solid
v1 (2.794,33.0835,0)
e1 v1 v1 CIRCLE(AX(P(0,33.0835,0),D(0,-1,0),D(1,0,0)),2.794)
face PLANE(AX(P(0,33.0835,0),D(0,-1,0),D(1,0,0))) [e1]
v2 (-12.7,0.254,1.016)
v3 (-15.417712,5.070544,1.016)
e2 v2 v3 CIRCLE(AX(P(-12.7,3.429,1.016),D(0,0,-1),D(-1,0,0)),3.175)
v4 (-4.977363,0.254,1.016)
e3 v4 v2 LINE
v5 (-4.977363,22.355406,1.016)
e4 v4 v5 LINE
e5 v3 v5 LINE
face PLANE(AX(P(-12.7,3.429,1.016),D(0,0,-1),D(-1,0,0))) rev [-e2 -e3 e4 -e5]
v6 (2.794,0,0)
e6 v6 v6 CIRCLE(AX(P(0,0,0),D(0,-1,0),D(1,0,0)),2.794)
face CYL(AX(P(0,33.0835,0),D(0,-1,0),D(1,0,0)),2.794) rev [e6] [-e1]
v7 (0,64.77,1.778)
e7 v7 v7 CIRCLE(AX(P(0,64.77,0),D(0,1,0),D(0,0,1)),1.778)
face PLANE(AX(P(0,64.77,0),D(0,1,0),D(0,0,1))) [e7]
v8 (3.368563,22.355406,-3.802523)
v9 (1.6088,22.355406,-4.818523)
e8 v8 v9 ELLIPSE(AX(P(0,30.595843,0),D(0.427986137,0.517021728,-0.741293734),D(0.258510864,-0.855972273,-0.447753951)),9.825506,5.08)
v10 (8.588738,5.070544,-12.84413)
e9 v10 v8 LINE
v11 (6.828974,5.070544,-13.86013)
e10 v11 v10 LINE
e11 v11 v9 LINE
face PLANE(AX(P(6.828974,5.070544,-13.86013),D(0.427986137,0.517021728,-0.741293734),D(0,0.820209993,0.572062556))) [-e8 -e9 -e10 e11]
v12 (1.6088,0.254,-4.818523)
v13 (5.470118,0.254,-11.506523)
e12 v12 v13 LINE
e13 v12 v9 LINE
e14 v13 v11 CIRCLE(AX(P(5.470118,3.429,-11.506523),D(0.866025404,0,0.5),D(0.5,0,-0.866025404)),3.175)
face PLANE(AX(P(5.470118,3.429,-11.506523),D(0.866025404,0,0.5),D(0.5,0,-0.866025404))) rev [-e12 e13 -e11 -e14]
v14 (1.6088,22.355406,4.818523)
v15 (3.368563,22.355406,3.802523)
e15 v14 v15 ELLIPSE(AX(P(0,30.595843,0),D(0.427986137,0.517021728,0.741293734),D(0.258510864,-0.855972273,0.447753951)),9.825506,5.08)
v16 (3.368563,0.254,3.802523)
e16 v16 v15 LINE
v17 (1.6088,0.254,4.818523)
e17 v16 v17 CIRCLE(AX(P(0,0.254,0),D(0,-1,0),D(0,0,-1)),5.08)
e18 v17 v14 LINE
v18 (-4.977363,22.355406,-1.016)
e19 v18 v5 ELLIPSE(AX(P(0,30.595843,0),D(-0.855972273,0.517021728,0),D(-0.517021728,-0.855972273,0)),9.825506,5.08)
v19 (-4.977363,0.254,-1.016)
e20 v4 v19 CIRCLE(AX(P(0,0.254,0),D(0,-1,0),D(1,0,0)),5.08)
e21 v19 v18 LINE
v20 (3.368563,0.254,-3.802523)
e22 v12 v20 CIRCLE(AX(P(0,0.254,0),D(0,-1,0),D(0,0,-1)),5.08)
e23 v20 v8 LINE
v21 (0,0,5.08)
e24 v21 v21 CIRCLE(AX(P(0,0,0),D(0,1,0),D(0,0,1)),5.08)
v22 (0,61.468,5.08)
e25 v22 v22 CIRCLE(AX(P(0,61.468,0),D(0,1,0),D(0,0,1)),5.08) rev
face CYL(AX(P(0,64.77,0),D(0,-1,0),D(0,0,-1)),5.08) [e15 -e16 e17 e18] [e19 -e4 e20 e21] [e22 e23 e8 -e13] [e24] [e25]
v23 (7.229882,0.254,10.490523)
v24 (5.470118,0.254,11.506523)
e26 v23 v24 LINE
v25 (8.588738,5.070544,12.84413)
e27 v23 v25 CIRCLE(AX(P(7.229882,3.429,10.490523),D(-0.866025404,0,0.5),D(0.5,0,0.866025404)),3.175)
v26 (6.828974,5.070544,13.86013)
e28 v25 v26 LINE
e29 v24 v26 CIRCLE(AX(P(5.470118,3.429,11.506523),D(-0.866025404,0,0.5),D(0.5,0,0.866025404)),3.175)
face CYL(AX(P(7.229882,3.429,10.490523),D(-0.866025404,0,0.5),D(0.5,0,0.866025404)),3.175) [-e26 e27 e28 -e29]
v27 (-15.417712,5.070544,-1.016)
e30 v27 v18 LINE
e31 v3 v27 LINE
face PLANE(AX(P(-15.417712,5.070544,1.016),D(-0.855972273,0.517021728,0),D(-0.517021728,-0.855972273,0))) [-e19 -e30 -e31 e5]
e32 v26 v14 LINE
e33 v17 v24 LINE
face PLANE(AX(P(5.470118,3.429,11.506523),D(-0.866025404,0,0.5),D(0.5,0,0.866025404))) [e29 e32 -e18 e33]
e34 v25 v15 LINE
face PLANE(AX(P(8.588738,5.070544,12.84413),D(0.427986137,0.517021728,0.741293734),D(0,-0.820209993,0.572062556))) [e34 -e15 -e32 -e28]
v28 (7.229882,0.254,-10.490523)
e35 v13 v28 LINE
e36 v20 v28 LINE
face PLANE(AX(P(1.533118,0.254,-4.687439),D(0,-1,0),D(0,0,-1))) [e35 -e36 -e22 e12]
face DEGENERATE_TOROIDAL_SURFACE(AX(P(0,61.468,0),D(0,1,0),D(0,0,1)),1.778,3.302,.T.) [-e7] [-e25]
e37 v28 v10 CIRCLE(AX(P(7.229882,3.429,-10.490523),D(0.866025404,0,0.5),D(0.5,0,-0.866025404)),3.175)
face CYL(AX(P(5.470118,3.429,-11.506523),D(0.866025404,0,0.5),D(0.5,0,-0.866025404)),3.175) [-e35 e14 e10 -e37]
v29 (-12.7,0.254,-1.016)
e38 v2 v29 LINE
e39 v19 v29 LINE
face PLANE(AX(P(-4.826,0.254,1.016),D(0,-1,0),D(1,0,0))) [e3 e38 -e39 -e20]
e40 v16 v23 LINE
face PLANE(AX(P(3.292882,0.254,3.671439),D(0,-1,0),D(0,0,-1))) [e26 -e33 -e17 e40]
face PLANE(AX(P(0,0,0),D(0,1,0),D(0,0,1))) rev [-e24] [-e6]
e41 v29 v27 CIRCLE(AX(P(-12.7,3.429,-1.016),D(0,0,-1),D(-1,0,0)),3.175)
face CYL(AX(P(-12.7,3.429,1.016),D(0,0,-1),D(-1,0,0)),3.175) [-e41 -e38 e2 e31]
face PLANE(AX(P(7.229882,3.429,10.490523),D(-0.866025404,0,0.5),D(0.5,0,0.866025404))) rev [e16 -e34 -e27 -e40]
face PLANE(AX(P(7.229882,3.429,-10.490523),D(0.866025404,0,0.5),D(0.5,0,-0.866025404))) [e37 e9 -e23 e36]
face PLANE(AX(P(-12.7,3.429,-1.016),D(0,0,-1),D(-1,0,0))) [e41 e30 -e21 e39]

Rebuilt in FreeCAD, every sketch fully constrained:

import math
import FreeCAD as App
import Part
import Sketcher
Q = App.Units.Quantity


def edges_at(feature, points):
    """Names of the edges that pass closest to the given points."""
    edges = feature.Shape.Edges
    near = lambda p: min(range(len(edges)), key=lambda i: edges[i].distToShape(Part.Vertex(*p))[0])
    return sorted({f"Edge{near(p) + 1}" for p in points})


def add_polygon(sketch, points):
    """Adds a closed chain of lines whose ends are joined by coincident constraints."""
    first, n = sketch.GeometryCount, len(points)
    for a, b in zip(points, points[1:] + points[:1]):
        sketch.addGeometry(Part.LineSegment(App.Vector(*a, 0), App.Vector(*b, 0)), False)
    for i in range(n):
        sketch.addConstraint(Sketcher.Constraint("Coincident", first + i, 2, first + (i + 1) % n, 1))

doc = App.newDocument("Part")
params = doc.addObject("Spreadsheet::Sheet", "Params")
for row, (alias, value) in enumerate([
    ("sketch1_diameter", "0.4 in"),
    ("pad1_length", "2.55 in"),
    ("fillet_radius", "0.13 in"),
    ("sketch2_width", "0.11 in"),
    ("groove_angle", "360 deg"),
    ("sketch3_radius", "0.125 in"),
    ("sketch3_width", "0.31 in"),
    ("sketch3_height", "0.88 in"),
    ("pad2_length", "0.08 in"),
], start=1):
    params.set(f"A{row}", alias)
    params.set(f"B{row}", "=" + value)
    params.setAlias(f"B{row}", alias)

body = doc.addObject("PartDesign::Body", "Body")

# Sketch on XZ plane
sketch1 = body.newObject("Sketcher::SketchObject", "Sketch")
sketch1.AttachmentSupport = (doc.getObject("XZ_Plane"), [""])
sketch1.MapMode = "FlatFace"
sketch1.addGeometry(Part.Circle(App.Vector(0, 0, 0), App.Vector(0, 0, 1), 5), False)
sketch1.addConstraint([
    Sketcher.Constraint("Coincident", 0, 3, -1, 1),
    Sketcher.Constraint("Diameter", 0, Q("0.4 in")),
])
sketch1.setExpression("Constraints[1]", "Params.sketch1_diameter")
pad1 = body.newObject("PartDesign::Pad", "Pad")
pad1.Profile = sketch1
pad1.setExpression("Length", "Params.pad1_length")
pad1.Reversed = True
doc.recompute()

fillet = body.newObject("PartDesign::Fillet", "Fillet")
fillet.Base = (pad1, edges_at(pad1, [(0, 64.77, -5.08)]))
fillet.setExpression("Radius", "Params.fillet_radius")

# Sketch on XY plane
sketch2 = body.newObject("Sketcher::SketchObject", "Sketch001")
sketch2.AttachmentSupport = (doc.getObject("XY_Plane"), [""])
sketch2.MapMode = "FlatFace"
add_polygon(sketch2, [(-2.8, 33.1), (-2.8, 0), (0, 0), (0, 33.1)])  # lines 0-3
sketch2.addConstraint([
    Sketcher.Constraint("Vertical", 0),
    Sketcher.Constraint("Horizontal", 1),
    Sketcher.Constraint("Vertical", 2),
    Sketcher.Constraint("Horizontal", 3),
    Sketcher.Constraint("Coincident", 1, 2, -1, 1),
    Sketcher.Constraint("DistanceX", 1, 1, 1, 2, Q("0.11 in")),
    Sketcher.Constraint("DistanceY", 0, 2, 0, 1, Q("1.3025 in")),
])
sketch2.setExpression("Constraints[9]", "Params.sketch2_width")
groove = body.newObject("PartDesign::Groove", "Groove")
groove.Profile = sketch2
groove.ReferenceAxis = (sketch2, ["V_Axis"])
groove.setExpression("Angle", "Params.groove_angle")

# Sketch on XY plane
sketch3 = body.newObject("Sketcher::SketchObject", "Sketch002")
sketch3.AttachmentSupport = (doc.getObject("XY_Plane"), [""])
sketch3.MapMode = "FlatFace"
sketch3.addGeometry([
    Part.LineSegment(App.Vector(-12.7, 0.3, 0), App.Vector(-4.8, 0.3, 0)),
    Part.LineSegment(App.Vector(-4.8, 0.3, 0), App.Vector(-4.8, 22.6, 0)),
    Part.LineSegment(App.Vector(-4.8, 22.6, 0), App.Vector(-15.4, 5.1, 0)),
    Part.ArcOfCircle(Part.Circle(App.Vector(-12.7, 3.4, 0), App.Vector(0, 0, 1), 3.2), math.radians(149), math.radians(270)),
], False)
sketch3.addConstraint([
    Sketcher.Constraint("Coincident", 0, 2, 1, 1),
    Sketcher.Constraint("Coincident", 1, 2, 2, 1),
    Sketcher.Constraint("Tangent", 2, 2, 3, 1),
    Sketcher.Constraint("Tangent", 3, 2, 0, 1),
    Sketcher.Constraint("Horizontal", 0),
    Sketcher.Constraint("Vertical", 1),
    Sketcher.Constraint("Radius", 3, Q("0.125 in")),
    Sketcher.Constraint("DistanceX", 0, 1, 0, 2, Q("0.31 in")),
    Sketcher.Constraint("DistanceY", 1, 1, 1, 2, Q("0.88 in")),
    Sketcher.Constraint("DistanceX", 3, 3, -1, 1, Q("0.5 in")),
    Sketcher.Constraint("DistanceY", -1, 1, 0, 2, Q("0.01 in")),
])
sketch3.setExpression("Constraints[6]", "Params.sketch3_radius")
sketch3.setExpression("Constraints[7]", "Params.sketch3_width")
sketch3.setExpression("Constraints[8]", "Params.sketch3_height")
pad2 = body.newObject("PartDesign::Pad", "Pad001")
pad2.Profile = sketch3
pad2.setExpression("Length", "Params.pad2_length")
pad2.Midplane = True
doc.recompute()

polarpattern = body.newObject("PartDesign::PolarPattern", "PolarPattern")
polarpattern.Originals = [pad2]
polarpattern.Axis = (doc.getObject("Y_Axis"), [""])
polarpattern.Angle = 360
polarpattern.Occurrences = 3
body.Tip = polarpattern

doc.recompute()
